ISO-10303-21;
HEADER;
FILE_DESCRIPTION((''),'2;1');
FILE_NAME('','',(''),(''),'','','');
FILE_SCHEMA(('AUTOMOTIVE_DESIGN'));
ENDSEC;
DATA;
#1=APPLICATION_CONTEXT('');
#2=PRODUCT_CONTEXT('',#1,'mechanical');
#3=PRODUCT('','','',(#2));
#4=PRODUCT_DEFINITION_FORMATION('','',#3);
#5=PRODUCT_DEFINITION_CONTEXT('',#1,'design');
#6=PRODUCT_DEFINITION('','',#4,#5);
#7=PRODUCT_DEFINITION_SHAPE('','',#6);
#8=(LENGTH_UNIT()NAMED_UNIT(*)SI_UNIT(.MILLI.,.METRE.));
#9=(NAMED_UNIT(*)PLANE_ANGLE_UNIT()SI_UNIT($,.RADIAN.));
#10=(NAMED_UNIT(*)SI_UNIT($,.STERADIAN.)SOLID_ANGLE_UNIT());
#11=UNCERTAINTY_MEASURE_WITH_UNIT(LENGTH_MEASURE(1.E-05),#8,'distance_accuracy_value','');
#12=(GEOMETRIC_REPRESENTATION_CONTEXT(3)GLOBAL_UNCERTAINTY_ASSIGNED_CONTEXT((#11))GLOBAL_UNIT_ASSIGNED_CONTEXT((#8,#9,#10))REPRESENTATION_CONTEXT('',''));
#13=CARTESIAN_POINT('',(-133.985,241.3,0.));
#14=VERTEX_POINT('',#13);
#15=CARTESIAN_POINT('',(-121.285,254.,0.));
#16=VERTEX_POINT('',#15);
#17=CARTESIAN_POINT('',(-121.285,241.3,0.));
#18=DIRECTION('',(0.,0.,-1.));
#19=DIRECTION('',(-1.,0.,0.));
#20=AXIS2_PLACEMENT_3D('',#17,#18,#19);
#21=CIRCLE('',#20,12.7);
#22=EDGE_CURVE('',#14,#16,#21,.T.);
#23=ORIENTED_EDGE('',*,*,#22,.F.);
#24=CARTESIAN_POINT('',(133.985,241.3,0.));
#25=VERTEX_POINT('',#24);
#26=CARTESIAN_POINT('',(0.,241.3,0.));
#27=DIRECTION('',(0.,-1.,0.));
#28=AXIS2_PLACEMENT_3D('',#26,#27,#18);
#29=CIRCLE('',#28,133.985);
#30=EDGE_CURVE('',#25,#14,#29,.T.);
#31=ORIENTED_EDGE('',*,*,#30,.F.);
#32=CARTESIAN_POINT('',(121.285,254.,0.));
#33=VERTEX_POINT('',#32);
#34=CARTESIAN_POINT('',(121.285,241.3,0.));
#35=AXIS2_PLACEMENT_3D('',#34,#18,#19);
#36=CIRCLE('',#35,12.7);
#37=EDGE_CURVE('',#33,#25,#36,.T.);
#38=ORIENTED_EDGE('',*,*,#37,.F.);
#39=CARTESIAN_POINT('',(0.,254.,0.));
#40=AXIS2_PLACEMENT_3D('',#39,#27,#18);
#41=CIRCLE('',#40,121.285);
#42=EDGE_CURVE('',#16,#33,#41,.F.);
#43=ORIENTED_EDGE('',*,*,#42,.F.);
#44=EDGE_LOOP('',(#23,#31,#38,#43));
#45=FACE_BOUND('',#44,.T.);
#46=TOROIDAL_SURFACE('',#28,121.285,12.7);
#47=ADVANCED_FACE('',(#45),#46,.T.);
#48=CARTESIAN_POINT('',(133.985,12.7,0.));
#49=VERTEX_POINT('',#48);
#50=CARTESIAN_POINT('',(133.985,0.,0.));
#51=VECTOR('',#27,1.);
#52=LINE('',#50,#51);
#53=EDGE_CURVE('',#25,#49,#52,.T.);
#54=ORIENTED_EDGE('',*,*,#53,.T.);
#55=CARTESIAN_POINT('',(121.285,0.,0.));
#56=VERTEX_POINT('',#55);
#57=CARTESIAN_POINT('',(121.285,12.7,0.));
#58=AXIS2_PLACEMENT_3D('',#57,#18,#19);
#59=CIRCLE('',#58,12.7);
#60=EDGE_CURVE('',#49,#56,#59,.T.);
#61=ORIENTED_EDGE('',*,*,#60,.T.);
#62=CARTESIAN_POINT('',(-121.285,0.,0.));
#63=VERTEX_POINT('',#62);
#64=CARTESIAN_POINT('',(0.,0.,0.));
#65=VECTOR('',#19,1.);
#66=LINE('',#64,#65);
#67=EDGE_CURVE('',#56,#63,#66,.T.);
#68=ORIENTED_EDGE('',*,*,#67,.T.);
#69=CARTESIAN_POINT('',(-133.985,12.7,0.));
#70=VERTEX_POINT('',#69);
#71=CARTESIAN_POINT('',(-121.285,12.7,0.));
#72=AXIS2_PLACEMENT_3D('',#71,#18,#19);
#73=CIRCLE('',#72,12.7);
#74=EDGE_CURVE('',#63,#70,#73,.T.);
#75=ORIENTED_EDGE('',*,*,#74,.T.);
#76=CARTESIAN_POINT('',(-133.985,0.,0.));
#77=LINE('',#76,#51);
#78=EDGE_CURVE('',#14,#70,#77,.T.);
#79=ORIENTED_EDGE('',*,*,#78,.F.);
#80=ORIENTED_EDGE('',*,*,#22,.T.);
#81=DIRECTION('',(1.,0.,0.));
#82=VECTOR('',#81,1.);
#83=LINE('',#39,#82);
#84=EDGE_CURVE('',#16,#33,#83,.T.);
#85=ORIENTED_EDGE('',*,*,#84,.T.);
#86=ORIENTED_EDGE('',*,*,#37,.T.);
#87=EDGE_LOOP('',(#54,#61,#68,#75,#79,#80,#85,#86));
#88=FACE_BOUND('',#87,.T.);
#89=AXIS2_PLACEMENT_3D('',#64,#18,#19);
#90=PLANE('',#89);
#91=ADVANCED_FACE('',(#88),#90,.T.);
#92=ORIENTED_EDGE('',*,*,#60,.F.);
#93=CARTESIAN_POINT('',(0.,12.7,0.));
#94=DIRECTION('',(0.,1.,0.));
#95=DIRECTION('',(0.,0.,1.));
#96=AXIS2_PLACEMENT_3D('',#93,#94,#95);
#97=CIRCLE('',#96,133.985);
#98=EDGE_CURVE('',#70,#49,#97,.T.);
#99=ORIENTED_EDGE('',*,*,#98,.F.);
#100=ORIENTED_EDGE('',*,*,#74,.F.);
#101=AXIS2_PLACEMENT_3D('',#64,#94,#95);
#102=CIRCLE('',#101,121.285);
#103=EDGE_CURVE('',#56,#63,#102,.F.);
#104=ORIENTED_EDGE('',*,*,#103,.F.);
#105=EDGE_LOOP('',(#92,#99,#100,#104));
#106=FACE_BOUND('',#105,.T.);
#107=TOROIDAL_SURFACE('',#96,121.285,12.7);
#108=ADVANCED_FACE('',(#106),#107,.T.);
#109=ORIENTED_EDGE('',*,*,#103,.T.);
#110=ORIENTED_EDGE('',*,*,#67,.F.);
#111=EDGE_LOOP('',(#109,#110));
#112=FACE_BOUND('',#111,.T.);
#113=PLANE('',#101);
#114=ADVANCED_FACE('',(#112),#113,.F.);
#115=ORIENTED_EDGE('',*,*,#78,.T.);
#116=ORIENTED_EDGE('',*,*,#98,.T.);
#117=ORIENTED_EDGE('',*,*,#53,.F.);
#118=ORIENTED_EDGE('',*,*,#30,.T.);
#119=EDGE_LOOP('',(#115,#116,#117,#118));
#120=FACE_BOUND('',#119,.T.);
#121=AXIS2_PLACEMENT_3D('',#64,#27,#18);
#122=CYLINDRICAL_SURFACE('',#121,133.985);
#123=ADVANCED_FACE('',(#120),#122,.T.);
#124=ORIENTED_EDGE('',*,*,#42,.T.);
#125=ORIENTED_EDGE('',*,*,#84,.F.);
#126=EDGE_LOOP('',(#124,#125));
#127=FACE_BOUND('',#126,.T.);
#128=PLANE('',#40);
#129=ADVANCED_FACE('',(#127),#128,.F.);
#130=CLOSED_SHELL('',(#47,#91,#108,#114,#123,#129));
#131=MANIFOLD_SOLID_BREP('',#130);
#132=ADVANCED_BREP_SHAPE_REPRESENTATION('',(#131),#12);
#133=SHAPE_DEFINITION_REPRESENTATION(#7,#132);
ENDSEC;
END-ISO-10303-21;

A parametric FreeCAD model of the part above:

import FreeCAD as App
import Part
import Sketcher

V = App.Vector
Q = App.Units.Quantity


def edges_at(feature, points):
    """Names of the edges that pass closest to the given points."""
    edges = feature.Shape.Edges
    near = lambda p: min(range(len(edges)), key=lambda i: edges[i].distToShape(Part.Vertex(*p))[0])
    return sorted({f"Edge{near(p) + 1}" for p in points})


def add_polygon(sketch, points):
    """Adds a closed chain of lines whose ends are joined by coincident constraints."""
    first, n = sketch.GeometryCount, len(points)
    for a, b in zip(points, points[1:] + points[:1]):
        sketch.addGeometry(Part.LineSegment(App.Vector(*a, 0), App.Vector(*b, 0)), False)
    for i in range(n):
        sketch.addConstraint(Sketcher.Constraint("Coincident", first + i, 2, first + (i + 1) % n, 1))

doc = App.newDocument("Part")
body = doc.addObject("PartDesign::Body", "Body")

sketch1 = body.newObject("Sketcher::SketchObject", "Sketch")
sketch1.AttachmentSupport = (doc.getObject("XY_Plane"), [""])
sketch1.MapMode = "FlatFace"
add_polygon(sketch1, [(-134, 254), (-134, 0), (0, 0), (0, 254)])
sketch1.addConstraint([
    Sketcher.Constraint("Vertical", 0),
    Sketcher.Constraint("Horizontal", 1),
    Sketcher.Constraint("Vertical", 2),
    Sketcher.Constraint("Horizontal", 3),
    Sketcher.Constraint("Coincident", 1, 2, -1, 1),
    Sketcher.Constraint("DistanceY", 0, 2, 0, 1, Q("10 in")),
    Sketcher.Constraint("DistanceX", 1, 1, 1, 2, Q("5.275 in")),
])
revolution = body.newObject("PartDesign::Revolution", "Revolution")
revolution.Profile = sketch1
revolution.ReferenceAxis = (sketch1, ["V_Axis"])
revolution.Angle = 180
doc.recompute()

fillet = body.newObject("PartDesign::Fillet", "Fillet")
fillet.Base = (revolution, edges_at(revolution, [(0, 0, 133.985), (0, 254, 133.985)]))
fillet.Radius = Q("0.5 in")

doc.recompute()
